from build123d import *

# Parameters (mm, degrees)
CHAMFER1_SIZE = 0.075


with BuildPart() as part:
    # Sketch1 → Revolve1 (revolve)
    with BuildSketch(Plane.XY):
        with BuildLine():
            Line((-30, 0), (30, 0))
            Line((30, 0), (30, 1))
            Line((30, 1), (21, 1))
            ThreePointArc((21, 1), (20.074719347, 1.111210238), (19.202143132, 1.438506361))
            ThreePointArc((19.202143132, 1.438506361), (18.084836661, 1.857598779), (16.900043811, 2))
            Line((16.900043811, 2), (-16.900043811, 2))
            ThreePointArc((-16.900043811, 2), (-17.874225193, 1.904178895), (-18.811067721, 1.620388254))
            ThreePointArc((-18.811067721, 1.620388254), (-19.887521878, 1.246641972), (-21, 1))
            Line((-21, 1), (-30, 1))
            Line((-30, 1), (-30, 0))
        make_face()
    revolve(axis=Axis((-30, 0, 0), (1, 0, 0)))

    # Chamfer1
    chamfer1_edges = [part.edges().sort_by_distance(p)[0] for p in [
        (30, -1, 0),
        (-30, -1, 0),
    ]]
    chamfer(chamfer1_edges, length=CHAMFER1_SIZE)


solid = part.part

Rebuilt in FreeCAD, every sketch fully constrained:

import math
import FreeCAD as App
import Part
import Sketcher


def edges_at(feature, points):
    """Names of the edges that pass closest to the given points."""
    edges = feature.Shape.Edges
    near = lambda p: min(range(len(edges)), key=lambda i: edges[i].distToShape(Part.Vertex(*p))[0])
    return sorted({f"Edge{near(p) + 1}" for p in points})

doc = App.newDocument("Part")
body = doc.addObject("PartDesign::Body", "Body")

sketch1 = body.newObject("Sketcher::SketchObject", "Sketch")
sketch1.AttachmentSupport = (doc.getObject("XY_Plane"), [""])
sketch1.MapMode = "FlatFace"
sketch1.addGeometry([
    Part.LineSegment(App.Vector(-30, 0, 0), App.Vector(30, 0, 0)),
    Part.LineSegment(App.Vector(30, 0, 0), App.Vector(30, 1, 0)),
    Part.LineSegment(App.Vector(30, 1, 0), App.Vector(21, 1, 0)),
    Part.ArcOfCircle(Part.Circle(App.Vector(21, 4.9, 0), App.Vector(0, 0, 1), 3.9), math.radians(-117), math.radians(-90)),
    Part.ArcOfCircle(Part.Circle(App.Vector(16.9, -3, 0), App.Vector(0, 0, 1), 5), math.radians(63), math.radians(90)),
    Part.LineSegment(App.Vector(16.9, 2, 0), App.Vector(-16.9, 2, 0)),
    Part.ArcOfCircle(Part.Circle(App.Vector(-16.9, -3, 0), App.Vector(0, 0, 1), 5), math.radians(90), math.radians(112)),
    Part.ArcOfCircle(Part.Circle(App.Vector(-22.6, 10.7, 0), App.Vector(0, 0, 1), 9.8), math.radians(-80.82), math.radians(-67.53)),
    Part.LineSegment(App.Vector(-21, 1, 0), App.Vector(-30, 1, 0)),
    Part.LineSegment(App.Vector(-30, 1, 0), App.Vector(-30, 0, 0)),
], False)
sketch1.addConstraint([
    Sketcher.Constraint("Coincident", 0, 2, 1, 1),
    Sketcher.Constraint("Coincident", 1, 2, 2, 1),
    Sketcher.Constraint("Tangent", 2, 2, 3, 2),
    Sketcher.Constraint("Tangent", 3, 1, 4, 1),
    Sketcher.Constraint("Tangent", 4, 2, 5, 1),
    Sketcher.Constraint("Tangent", 5, 2, 6, 1),
    Sketcher.Constraint("Tangent", 6, 2, 7, 2),
    Sketcher.Constraint("Coincident", 7, 1, 8, 1),
    Sketcher.Constraint("Coincident", 8, 2, 9, 1),
    Sketcher.Constraint("Coincident", 9, 2, 0, 1),
    Sketcher.Constraint("Horizontal", 0),
    Sketcher.Constraint("Vertical", 1),
    Sketcher.Constraint("Horizontal", 2),
    Sketcher.Constraint("Horizontal", 5),
    Sketcher.Constraint("Horizontal", 8),
    Sketcher.Constraint("Vertical", 9),
    Sketcher.Constraint("Equal", 4, 6),
    Sketcher.Constraint("Symmetric", 0, 2, 9, 2, -1, 1),
    Sketcher.Constraint("Symmetric", 2, 2, 7, 1, -2),
    Sketcher.Constraint("Radius", 4, 5.0),
    Sketcher.Constraint("DistanceX", 0, 1, 0, 2, 60.0),
    Sketcher.Constraint("DistanceX", 2, 2, 2, 1, 9.0),
    Sketcher.Constraint("DistanceY", 1, 1, 1, 2, 1.0),
    Sketcher.Constraint("DistanceY", 4, 3, -1, 1, 3.0),
    Sketcher.Constraint("Radius", 3, 3.90482),
    Sketcher.Constraint("Radius", 7, 9.828424),
    Sketcher.Constraint("DistanceX", 5, 2, 5, 1, 33.800088),
])
revolution = body.newObject("PartDesign::Revolution", "Revolution")
revolution.Profile = sketch1
revolution.ReferenceAxis = (sketch1, ["H_Axis"])
revolution.Angle = 360
doc.recompute()

chamfer = body.newObject("PartDesign::Chamfer", "Chamfer")
chamfer.Base = (revolution, edges_at(revolution, [(30, -1, 0), (-30, -1, 0)]))
chamfer.Size = 0.075

doc.recompute()
